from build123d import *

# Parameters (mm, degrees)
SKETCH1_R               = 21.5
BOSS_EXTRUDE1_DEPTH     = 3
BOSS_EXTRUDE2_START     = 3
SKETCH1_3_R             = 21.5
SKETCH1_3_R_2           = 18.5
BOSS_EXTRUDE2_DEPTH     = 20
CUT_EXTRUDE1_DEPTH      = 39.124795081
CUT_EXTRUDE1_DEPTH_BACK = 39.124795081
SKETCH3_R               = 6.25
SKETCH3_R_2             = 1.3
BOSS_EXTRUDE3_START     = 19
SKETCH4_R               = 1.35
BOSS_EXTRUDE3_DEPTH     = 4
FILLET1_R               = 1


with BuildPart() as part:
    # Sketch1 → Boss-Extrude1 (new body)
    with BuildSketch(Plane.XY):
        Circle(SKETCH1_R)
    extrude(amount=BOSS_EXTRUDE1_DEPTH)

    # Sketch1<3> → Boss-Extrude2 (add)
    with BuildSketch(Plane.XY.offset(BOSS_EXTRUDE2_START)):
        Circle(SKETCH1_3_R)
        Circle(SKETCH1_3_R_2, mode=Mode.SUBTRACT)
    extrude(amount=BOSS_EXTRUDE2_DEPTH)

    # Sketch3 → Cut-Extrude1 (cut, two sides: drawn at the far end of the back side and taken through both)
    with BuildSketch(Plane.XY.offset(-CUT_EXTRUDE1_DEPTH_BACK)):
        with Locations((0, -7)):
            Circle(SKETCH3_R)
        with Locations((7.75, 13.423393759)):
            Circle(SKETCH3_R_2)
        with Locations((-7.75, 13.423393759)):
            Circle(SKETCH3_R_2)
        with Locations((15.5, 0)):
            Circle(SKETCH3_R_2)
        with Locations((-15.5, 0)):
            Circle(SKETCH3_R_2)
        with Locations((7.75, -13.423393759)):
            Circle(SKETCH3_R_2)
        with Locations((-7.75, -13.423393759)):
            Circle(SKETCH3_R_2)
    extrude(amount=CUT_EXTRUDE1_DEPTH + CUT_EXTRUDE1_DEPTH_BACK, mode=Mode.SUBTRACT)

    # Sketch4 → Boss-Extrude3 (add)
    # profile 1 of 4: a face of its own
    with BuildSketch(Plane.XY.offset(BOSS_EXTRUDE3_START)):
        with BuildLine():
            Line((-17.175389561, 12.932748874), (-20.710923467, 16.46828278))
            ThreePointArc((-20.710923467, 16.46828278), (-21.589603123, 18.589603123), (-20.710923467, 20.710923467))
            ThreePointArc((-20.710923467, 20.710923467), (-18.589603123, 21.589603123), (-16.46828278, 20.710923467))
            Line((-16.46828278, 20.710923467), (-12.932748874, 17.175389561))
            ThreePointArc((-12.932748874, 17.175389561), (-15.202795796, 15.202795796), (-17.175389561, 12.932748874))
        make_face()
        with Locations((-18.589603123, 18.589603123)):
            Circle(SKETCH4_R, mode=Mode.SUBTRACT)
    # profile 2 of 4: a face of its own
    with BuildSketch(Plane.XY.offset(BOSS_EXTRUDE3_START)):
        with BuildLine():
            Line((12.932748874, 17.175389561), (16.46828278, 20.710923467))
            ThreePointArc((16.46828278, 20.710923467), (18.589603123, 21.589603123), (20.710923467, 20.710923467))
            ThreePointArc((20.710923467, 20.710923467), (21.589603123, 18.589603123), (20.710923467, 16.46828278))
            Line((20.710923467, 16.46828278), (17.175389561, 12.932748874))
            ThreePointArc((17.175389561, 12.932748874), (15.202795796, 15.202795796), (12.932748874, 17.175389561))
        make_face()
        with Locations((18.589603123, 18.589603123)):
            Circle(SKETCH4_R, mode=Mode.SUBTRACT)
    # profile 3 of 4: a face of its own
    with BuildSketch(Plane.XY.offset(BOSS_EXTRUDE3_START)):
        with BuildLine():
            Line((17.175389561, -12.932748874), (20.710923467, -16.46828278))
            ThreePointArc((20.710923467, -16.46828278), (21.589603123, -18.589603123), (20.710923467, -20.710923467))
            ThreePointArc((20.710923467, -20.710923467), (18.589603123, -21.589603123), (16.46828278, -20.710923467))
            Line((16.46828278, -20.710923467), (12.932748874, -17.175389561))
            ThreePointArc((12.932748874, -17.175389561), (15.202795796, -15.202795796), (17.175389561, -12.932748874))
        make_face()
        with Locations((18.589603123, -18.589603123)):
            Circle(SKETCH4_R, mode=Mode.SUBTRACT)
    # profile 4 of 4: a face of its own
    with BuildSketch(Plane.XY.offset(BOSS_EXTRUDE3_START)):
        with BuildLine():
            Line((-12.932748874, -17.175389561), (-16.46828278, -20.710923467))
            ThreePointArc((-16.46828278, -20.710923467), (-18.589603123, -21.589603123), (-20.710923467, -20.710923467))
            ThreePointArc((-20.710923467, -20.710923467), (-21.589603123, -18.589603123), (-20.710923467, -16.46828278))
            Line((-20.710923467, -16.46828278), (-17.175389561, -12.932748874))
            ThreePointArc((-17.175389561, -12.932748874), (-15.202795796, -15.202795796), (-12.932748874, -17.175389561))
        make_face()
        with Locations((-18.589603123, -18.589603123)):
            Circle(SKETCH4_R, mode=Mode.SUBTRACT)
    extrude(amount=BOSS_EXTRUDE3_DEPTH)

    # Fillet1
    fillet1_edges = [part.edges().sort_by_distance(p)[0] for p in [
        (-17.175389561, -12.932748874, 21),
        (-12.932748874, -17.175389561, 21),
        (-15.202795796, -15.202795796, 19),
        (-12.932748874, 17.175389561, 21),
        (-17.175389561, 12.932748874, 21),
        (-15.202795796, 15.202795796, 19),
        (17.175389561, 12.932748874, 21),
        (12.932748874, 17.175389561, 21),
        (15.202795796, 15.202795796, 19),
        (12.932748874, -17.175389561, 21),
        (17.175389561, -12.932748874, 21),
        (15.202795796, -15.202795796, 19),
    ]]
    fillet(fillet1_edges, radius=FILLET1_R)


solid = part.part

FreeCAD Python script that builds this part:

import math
import FreeCAD as App
import Part
import Sketcher


def edges_at(feature, points):
    """Names of the edges that pass closest to the given points."""
    edges = feature.Shape.Edges
    near = lambda p: min(range(len(edges)), key=lambda i: edges[i].distToShape(Part.Vertex(*p))[0])
    return sorted({f"Edge{near(p) + 1}" for p in points})

doc = App.newDocument("Part")
body = doc.addObject("PartDesign::Body", "Body")

# Sketch on XY plane
sketch1 = doc.addObject("Sketcher::SketchObject", "Sketch")
body.addObject(sketch1)
sketch1.AttachmentSupport = (doc.XY_Plane, [""])
sketch1.MapMode = "FlatFace"
sketch1.addGeometry(Part.Circle(App.Vector(0, 0, 0), App.Vector(0, 0, 1), 21.5), False)
sketch1.addConstraint(Sketcher.Constraint("Coincident", 0, 3, -1, 1))
sketch1.addConstraint(Sketcher.Constraint("Diameter", 0, 43.0))
pad1 = doc.addObject("PartDesign::Pad", "Pad")
body.addObject(pad1)
pad1.Profile = sketch1
pad1.Length = 3

# Sketch on XY plane
sketch2 = doc.addObject("Sketcher::SketchObject", "Sketch001")
body.addObject(sketch2)
sketch2.AttachmentSupport = (doc.XY_Plane, [""])
sketch2.MapMode = "FlatFace"
sketch2.AttachmentOffset = App.Placement(App.Vector(0, 0, 3), App.Rotation())
sketch2.addGeometry(Part.Circle(App.Vector(0, 0, 0), App.Vector(0, 0, 1), 21.5), False)
sketch2.addGeometry(Part.Circle(App.Vector(0, 0, 0), App.Vector(0, 0, 1), 18.5), False)
sketch2.addConstraint(Sketcher.Constraint("Coincident", 0, 3, -1, 1))
sketch2.addConstraint(Sketcher.Constraint("Coincident", 1, 3, -1, 1))
sketch2.addConstraint(Sketcher.Constraint("Diameter", 0, 43.0))
sketch2.addConstraint(Sketcher.Constraint("Diameter", 1, 37.0))
pad2 = doc.addObject("PartDesign::Pad", "Pad001")
body.addObject(pad2)
pad2.Profile = sketch2
pad2.Length = 20

# Sketch on XY plane
sketch3 = doc.addObject("Sketcher::SketchObject", "Sketch002")
body.addObject(sketch3)
sketch3.AttachmentSupport = (doc.XY_Plane, [""])
sketch3.MapMode = "FlatFace"
sketch3.addGeometry(Part.Circle(App.Vector(0, -7, 0), App.Vector(0, 0, 1), 6.25), False)
sketch3.addGeometry(Part.Circle(App.Vector(7.75, 13.423394, 0), App.Vector(0, 0, 1), 1.3), False)
sketch3.addGeometry(Part.Circle(App.Vector(-7.75, 13.423394, 0), App.Vector(0, 0, 1), 1.3), False)
sketch3.addGeometry(Part.Circle(App.Vector(15.5, 0, 0), App.Vector(0, 0, 1), 1.3), False)
sketch3.addGeometry(Part.Circle(App.Vector(-15.5, 0, 0), App.Vector(0, 0, 1), 1.3), False)
sketch3.addGeometry(Part.Circle(App.Vector(7.75, -13.423394, 0), App.Vector(0, 0, 1), 1.3), False)
sketch3.addGeometry(Part.Circle(App.Vector(-7.75, -13.423394, 0), App.Vector(0, 0, 1), 1.3), False)
sketch3.addConstraint(Sketcher.Constraint("Equal", 1, 2))
sketch3.addConstraint(Sketcher.Constraint("Equal", 2, 3))
sketch3.addConstraint(Sketcher.Constraint("Equal", 3, 4))
sketch3.addConstraint(Sketcher.Constraint("Equal", 4, 5))
sketch3.addConstraint(Sketcher.Constraint("Equal", 5, 6))
sketch3.addConstraint(Sketcher.Constraint("Symmetric", 3, 3, 4, 3, -1, 1))
sketch3.addConstraint(Sketcher.Constraint("Symmetric", 2, 3, 5, 3, -1, 1))
sketch3.addConstraint(Sketcher.Constraint("Symmetric", 1, 3, 6, 3, -1, 1))
sketch3.addConstraint(Sketcher.Constraint("Symmetric", 1, 3, 2, 3, -2))
sketch3.addConstraint(Sketcher.Constraint("PointOnObject", 0, 3, -2))
sketch3.addConstraint(Sketcher.Constraint("PointOnObject", 3, 3, -1))
sketch3.addConstraint(Sketcher.Constraint("Diameter", 0, 12.5))
sketch3.addConstraint(Sketcher.Constraint("Diameter", 1, 2.6))
sketch3.addConstraint(Sketcher.Constraint("DistanceY", 0, 3, -1, 1, 7.0))
sketch3.addConstraint(Sketcher.Constraint("DistanceX", 4, 3, 3, 3, 31.0))
sketch3.addConstraint(Sketcher.Constraint("DistanceX", 2, 3, 1, 3, 15.5))
sketch3.addConstraint(Sketcher.Constraint("DistanceY", -1, 1, 1, 3, 13.423394))
pocket1 = doc.addObject("PartDesign::Pocket", "Pocket")
body.addObject(pocket1)
pocket1.Profile = sketch3
pocket1.Type = "ThroughAll"
pocket1.Midplane = True

# Sketch on XY plane
sketch4 = doc.addObject("Sketcher::SketchObject", "Sketch003")
body.addObject(sketch4)
sketch4.AttachmentSupport = (doc.XY_Plane, [""])
sketch4.MapMode = "FlatFace"
sketch4.AttachmentOffset = App.Placement(App.Vector(0, 0, 19), App.Rotation())
sketch4.addGeometry(Part.LineSegment(App.Vector(-20.710923, 16.468283, 0), App.Vector(-17.17539, 12.932749, 0)), False)
sketch4.addGeometry(Part.ArcOfCircle(Part.Circle(App.Vector(0, 0, 0), App.Vector(0, 0, 1), 21.5), math.radians(126.979067), math.radians(143.020933)), False)
sketch4.addGeometry(Part.LineSegment(App.Vector(-12.932749, 17.17539, 0), App.Vector(-16.468283, 20.710923, 0)), False)
sketch4.addGeometry(Part.ArcOfCircle(Part.Circle(App.Vector(-18.589603, 18.589603, 0), App.Vector(0, 0, 1), 3), math.radians(45), math.radians(135)), False)
sketch4.addGeometry(Part.ArcOfCircle(Part.Circle(App.Vector(-18.589603, 18.589603, 0), App.Vector(0, 0, 1), 3), math.radians(135), math.radians(225)), False)
sketch4.addGeometry(Part.Circle(App.Vector(-18.589603, 18.589603, 0), App.Vector(0, 0, 1), 1.35), False)
sketch4.addGeometry(Part.LineSegment(App.Vector(16.468283, 20.710923, 0), App.Vector(12.932749, 17.17539, 0)), False)
sketch4.addGeometry(Part.ArcOfCircle(Part.Circle(App.Vector(0, 0, 0), App.Vector(0, 0, 1), 21.5), math.radians(36.979067), math.radians(53.020933)), False)
sketch4.addGeometry(Part.LineSegment(App.Vector(17.17539, 12.932749, 0), App.Vector(20.710923, 16.468283, 0)), False)
sketch4.addGeometry(Part.ArcOfCircle(Part.Circle(App.Vector(18.589603, 18.589603, 0), App.Vector(0, 0, 1), 3), math.radians(-45), math.radians(45)), False)
sketch4.addGeometry(Part.ArcOfCircle(Part.Circle(App.Vector(18.589603, 18.589603, 0), App.Vector(0, 0, 1), 3), math.radians(45), math.radians(135)), False)
sketch4.addGeometry(Part.Circle(App.Vector(18.589603, 18.589603, 0), App.Vector(0, 0, 1), 1.35), False)
sketch4.addGeometry(Part.LineSegment(App.Vector(20.710923, -16.468283, 0), App.Vector(17.17539, -12.932749, 0)), False)
sketch4.addGeometry(Part.ArcOfCircle(Part.Circle(App.Vector(0, 0, 0), App.Vector(0, 0, 1), 21.5), math.radians(-53.020933), math.radians(-36.979067)), False)
sketch4.addGeometry(Part.LineSegment(App.Vector(12.932749, -17.17539, 0), App.Vector(16.468283, -20.710923, 0)), False)
sketch4.addGeometry(Part.ArcOfCircle(Part.Circle(App.Vector(18.589603, -18.589603, 0), App.Vector(0, 0, 1), 3), math.radians(-135), math.radians(-45)), False)
sketch4.addGeometry(Part.ArcOfCircle(Part.Circle(App.Vector(18.589603, -18.589603, 0), App.Vector(0, 0, 1), 3), math.radians(-45), math.radians(45)), False)
sketch4.addGeometry(Part.Circle(App.Vector(18.589603, -18.589603, 0), App.Vector(0, 0, 1), 1.35), False)
sketch4.addGeometry(Part.LineSegment(App.Vector(-16.468283, -20.710923, 0), App.Vector(-12.932749, -17.17539, 0)), False)
sketch4.addGeometry(Part.ArcOfCircle(Part.Circle(App.Vector(0, 0, 0), App.Vector(0, 0, 1), 21.5), math.radians(-143.020933), math.radians(-126.979067)), False)
sketch4.addGeometry(Part.LineSegment(App.Vector(-17.17539, -12.932749, 0), App.Vector(-20.710923, -16.468283, 0)), False)
sketch4.addGeometry(Part.ArcOfCircle(Part.Circle(App.Vector(-18.589603, -18.589603, 0), App.Vector(0, 0, 1), 3), math.radians(135), math.radians(225)), False)
sketch4.addGeometry(Part.ArcOfCircle(Part.Circle(App.Vector(-18.589603, -18.589603, 0), App.Vector(0, 0, 1), 3), math.radians(-135), math.radians(-45)), False)
sketch4.addGeometry(Part.Circle(App.Vector(-18.589603, -18.589603, 0), App.Vector(0, 0, 1), 1.35), False)
sketch4.addConstraint(Sketcher.Constraint("Coincident", 0, 2, 1, 2))
sketch4.addConstraint(Sketcher.Constraint("Coincident", 1, 1, 2, 1))
sketch4.addConstraint(Sketcher.Constraint("Tangent", 2, 2, 3, 1))
sketch4.addConstraint(Sketcher.Constraint("Tangent", 3, 2, 4, 1))
sketch4.addConstraint(Sketcher.Constraint("Tangent", 4, 2, 0, 1))
sketch4.addConstraint(Sketcher.Constraint("Coincident", 6, 2, 7, 2))
sketch4.addConstraint(Sketcher.Constraint("Coincident", 7, 1, 8, 1))
sketch4.addConstraint(Sketcher.Constraint("Tangent", 8, 2, 9, 1))
sketch4.addConstraint(Sketcher.Constraint("Tangent", 9, 2, 10, 1))
sketch4.addConstraint(Sketcher.Constraint("Tangent", 10, 2, 6, 1))
sketch4.addConstraint(Sketcher.Constraint("Coincident", 12, 2, 13, 2))
sketch4.addConstraint(Sketcher.Constraint("Coincident", 13, 1, 14, 1))
sketch4.addConstraint(Sketcher.Constraint("Tangent", 14, 2, 15, 1))
sketch4.addConstraint(Sketcher.Constraint("Tangent", 15, 2, 16, 1))
sketch4.addConstraint(Sketcher.Constraint("Tangent", 16, 2, 12, 1))
sketch4.addConstraint(Sketcher.Constraint("Coincident", 18, 2, 19, 2))
sketch4.addConstraint(Sketcher.Constraint("Coincident", 19, 1, 20, 1))
sketch4.addConstraint(Sketcher.Constraint("Tangent", 20, 2, 21, 1))
sketch4.addConstraint(Sketcher.Constraint("Tangent", 21, 2, 22, 1))
sketch4.addConstraint(Sketcher.Constraint("Tangent", 22, 2, 18, 1))
sketch4.addConstraint(Sketcher.Constraint("Coincident", 1, 3, -1, 1))
sketch4.addConstraint(Sketcher.Constraint("Coincident", 7, 3, -1, 1))
sketch4.addConstraint(Sketcher.Constraint("Coincident", 13, 3, -1, 1))
sketch4.addConstraint(Sketcher.Constraint("Coincident", 19, 3, -1, 1))
sketch4.addConstraint(Sketcher.Constraint("Coincident", 5, 3, 3, 3))
sketch4.addConstraint(Sketcher.Constraint("Coincident", 11, 3, 9, 3))
sketch4.addConstraint(Sketcher.Constraint("Coincident", 17, 3, 15, 3))
sketch4.addConstraint(Sketcher.Constraint("Coincident", 23, 3, 21, 3))
sketch4.addConstraint(Sketcher.Constraint("Equal", 3, 4))
sketch4.addConstraint(Sketcher.Constraint("Equal", 1, 7))
sketch4.addConstraint(Sketcher.Constraint("Equal", 4, 9))
sketch4.addConstraint(Sketcher.Constraint("Equal", 9, 10))
sketch4.addConstraint(Sketcher.Constraint("Equal", 5, 11))
sketch4.addConstraint(Sketcher.Constraint("Equal", 7, 13))
sketch4.addConstraint(Sketcher.Constraint("Equal", 10, 15))
sketch4.addConstraint(Sketcher.Constraint("Equal", 15, 16))
sketch4.addConstraint(Sketcher.Constraint("Equal", 11, 17))
sketch4.addConstraint(Sketcher.Constraint("Equal", 13, 19))
sketch4.addConstraint(Sketcher.Constraint("Equal", 16, 21))
sketch4.addConstraint(Sketcher.Constraint("Equal", 21, 22))
sketch4.addConstraint(Sketcher.Constraint("Equal", 17, 23))
sketch4.addConstraint(Sketcher.Constraint("Symmetric", 3, 3, 15, 3, -1, 1))
sketch4.addConstraint(Sketcher.Constraint("Symmetric", 9, 3, 21, 3, -1, 1))
sketch4.addConstraint(Sketcher.Constraint("Symmetric", 3, 3, 9, 3, -2))
sketch4.addConstraint(Sketcher.Constraint("Parallel", 0, 2))
sketch4.addConstraint(Sketcher.Constraint("Perpendicular", 2, 6))
sketch4.addConstraint(Sketcher.Constraint("Parallel", 6, 8))
sketch4.addConstraint(Sketcher.Constraint("Perpendicular", 8, 12))
sketch4.addConstraint(Sketcher.Constraint("Parallel", 12, 14))
sketch4.addConstraint(Sketcher.Constraint("Perpendicular", 14, 18))
sketch4.addConstraint(Sketcher.Constraint("Parallel", 18, 20))
sketch4.addConstraint(Sketcher.Constraint("Horizontal", 2, 2, 3, 2))
sketch4.addConstraint(Sketcher.Constraint("Horizontal", 1, 1, 6, 2))
sketch4.addConstraint(Sketcher.Constraint("Horizontal", 3, 2, 9, 2))
sketch4.addConstraint(Sketcher.Constraint("Horizontal", 14, 2, 15, 2))
sketch4.addConstraint(Sketcher.Constraint("Horizontal", 15, 2, 21, 2))
sketch4.addConstraint(Sketcher.Constraint("Equal", 0, 2))
sketch4.addConstraint(Sketcher.Constraint("Radius", 3, 3.0))
sketch4.addConstraint(Sketcher.Constraint("Diameter", 5, 2.7))
sketch4.addConstraint(Sketcher.Constraint("Radius", 1, 21.5))
sketch4.addConstraint(Sketcher.Constraint("Distance", 0, 5.0))
pad3 = doc.addObject("PartDesign::Pad", "Pad002")
body.addObject(pad3)
pad3.Profile = sketch4
pad3.Length = 4
doc.recompute()

fillet = doc.addObject("PartDesign::Fillet", "Fillet")
body.addObject(fillet)
fillet.Base = (pad3, edges_at(pad3, [
    (-17.175, -12.933, 21),
    (-12.933, -17.175, 21),
    (-15.203, -15.203, 19),
    (-12.933, 17.175, 21),
    (-17.175, 12.933, 21),
    (-15.203, 15.203, 19),
    (17.175, 12.933, 21),
    (12.933, 17.175, 21),
    (15.203, 15.203, 19),
    (12.933, -17.175, 21),
    (17.175, -12.933, 21),
    (15.203, -15.203, 19),
]))
fillet.Radius = 1

doc.recompute()
